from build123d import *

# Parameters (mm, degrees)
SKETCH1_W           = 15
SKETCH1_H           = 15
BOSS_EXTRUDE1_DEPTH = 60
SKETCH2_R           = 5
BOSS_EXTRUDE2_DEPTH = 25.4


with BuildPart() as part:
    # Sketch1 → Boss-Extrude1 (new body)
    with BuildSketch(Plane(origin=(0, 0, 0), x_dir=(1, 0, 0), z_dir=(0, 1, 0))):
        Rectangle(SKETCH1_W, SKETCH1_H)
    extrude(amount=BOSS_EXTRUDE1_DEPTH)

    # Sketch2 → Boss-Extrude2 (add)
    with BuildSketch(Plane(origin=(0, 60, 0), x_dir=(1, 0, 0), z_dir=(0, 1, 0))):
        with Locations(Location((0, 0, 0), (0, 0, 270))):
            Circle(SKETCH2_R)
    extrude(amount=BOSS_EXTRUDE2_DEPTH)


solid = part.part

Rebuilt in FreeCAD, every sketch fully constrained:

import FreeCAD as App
import Part
import Sketcher

doc = App.newDocument("Part")
body = doc.addObject("PartDesign::Body", "Body")

# Sketch on XZ plane
sketch1 = body.newObject("Sketcher::SketchObject", "Sketch")
sketch1.AttachmentSupport = (doc.getObject("XZ_Plane"), [""])
sketch1.MapMode = "FlatFace"
sketch1.addGeometry(Part.LineSegment(App.Vector(-7.5, -7.5, 0), App.Vector(-7.5, 7.5, 0)), False)
sketch1.addGeometry(Part.LineSegment(App.Vector(-7.5, 7.5, 0), App.Vector(7.5, 7.5, 0)), False)
sketch1.addGeometry(Part.LineSegment(App.Vector(7.5, 7.5, 0), App.Vector(7.5, -7.5, 0)), False)
sketch1.addGeometry(Part.LineSegment(App.Vector(7.5, -7.5, 0), App.Vector(-7.5, -7.5, 0)), False)
sketch1.addConstraint(Sketcher.Constraint("Coincident", 0, 2, 1, 1))
sketch1.addConstraint(Sketcher.Constraint("Coincident", 1, 2, 2, 1))
sketch1.addConstraint(Sketcher.Constraint("Coincident", 2, 2, 3, 1))
sketch1.addConstraint(Sketcher.Constraint("Coincident", 3, 2, 0, 1))
sketch1.addConstraint(Sketcher.Constraint("Vertical", 0))
sketch1.addConstraint(Sketcher.Constraint("Horizontal", 1))
sketch1.addConstraint(Sketcher.Constraint("Vertical", 2))
sketch1.addConstraint(Sketcher.Constraint("Horizontal", 3))
sketch1.addConstraint(Sketcher.Constraint("Symmetric", 0, 2, 2, 2, -1, 1))
sketch1.addConstraint(Sketcher.Constraint("Equal", 3, 0))
sketch1.addConstraint(Sketcher.Constraint("DistanceX", 1, 1, 1, 2, 15.0))
pad1 = body.newObject("PartDesign::Pad", "Pad")
pad1.Profile = sketch1
pad1.Length = 60
pad1.Reversed = True

# Sketch on XZ plane
sketch2 = body.newObject("Sketcher::SketchObject", "Sketch001")
sketch2.AttachmentSupport = (doc.getObject("XZ_Plane"), [""])
sketch2.MapMode = "FlatFace"
sketch2.AttachmentOffset = App.Placement(App.Vector(0, 0, -60), App.Rotation())
sketch2.addGeometry(Part.Circle(App.Vector(0, 0, 0), App.Vector(0, 0, 1), 5), False)
sketch2.addConstraint(Sketcher.Constraint("Coincident", 0, 3, -1, 1))
sketch2.addConstraint(Sketcher.Constraint("Diameter", 0, 10.0))
pad2 = body.newObject("PartDesign::Pad", "Pad001")
pad2.Profile = sketch2
pad2.Length = 25.4
pad2.Reversed = True

doc.recompute()
